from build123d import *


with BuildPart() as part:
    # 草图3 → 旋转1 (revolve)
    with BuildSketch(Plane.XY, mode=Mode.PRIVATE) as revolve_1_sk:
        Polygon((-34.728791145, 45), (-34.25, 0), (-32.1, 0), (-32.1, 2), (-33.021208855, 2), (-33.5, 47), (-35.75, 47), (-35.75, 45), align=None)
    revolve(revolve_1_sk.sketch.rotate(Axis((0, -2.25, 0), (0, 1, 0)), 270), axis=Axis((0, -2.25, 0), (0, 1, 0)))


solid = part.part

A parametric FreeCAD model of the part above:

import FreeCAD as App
import Part
import Sketcher
from FreeCAD import Vector


def add_polygon(sketch, points):
    """Adds a closed chain of lines whose ends are joined by coincident constraints."""
    first, n = sketch.GeometryCount, len(points)
    for a, b in zip(points, points[1:] + points[:1]):
        sketch.addGeometry(Part.LineSegment(App.Vector(*a, 0), App.Vector(*b, 0)), False)
    for i in range(n):
        sketch.addConstraint(Sketcher.Constraint("Coincident", first + i, 2, first + (i + 1) % n, 1))

doc = App.newDocument("Part")
params = doc.addObject("Spreadsheet::Sheet", "Params")
for row, (alias, value) in enumerate([
    ("sketch1_height", "2 mm"),
    ("sketch1_width", "2.15 mm"),
    ("sketch1_width2", "2.25 mm"),
    ("revolution_angle", "360 deg"),
], start=1):
    params.set(f"A{row}", alias)
    params.set(f"B{row}", "=" + value)
    params.setAlias(f"B{row}", alias)

body = doc.addObject("PartDesign::Body", "Body")

sketch1 = doc.addObject("Sketcher::SketchObject", "Sketch")
body.addObject(sketch1)
sketch1.AttachmentSupport = (doc.XY_Plane, [""])
sketch1.MapMode = "FlatFace"
add_polygon(sketch1, [(-34.7, 45), (-34.2, 0), (-32.1, 0), (-32.1, 2), (-33, 2), (-33.5, 47), (-35.8, 47), (-35.8, 45)])
sketch1.addConstraint(Sketcher.Constraint("Horizontal", 1))
sketch1.addConstraint(Sketcher.Constraint("Vertical", 2))
sketch1.addConstraint(Sketcher.Constraint("Horizontal", 3))
sketch1.addConstraint(Sketcher.Constraint("Horizontal", 5))
sketch1.addConstraint(Sketcher.Constraint("Vertical", 6))
sketch1.addConstraint(Sketcher.Constraint("Horizontal", 7))
sketch1.addConstraint(Sketcher.Constraint("PointOnObject", 0, 2, -1))
sketch1.addConstraint(Sketcher.Constraint("Parallel", 0, 4))
sketch1.addConstraint(Sketcher.Constraint("Equal", 2, 6))
sketch1.addConstraint(Sketcher.Constraint("DistanceY", 2, 1, 2, 2, 2.0))
sketch1.addConstraint(Sketcher.Constraint("DistanceY", -1, 1, 4, 2, 47.0))
sketch1.addConstraint(Sketcher.Constraint("DistanceX", 1, 1, 1, 2, 2.15))
sketch1.addConstraint(Sketcher.Constraint("DistanceX", 5, 2, 5, 1, 2.25))
sketch1.addConstraint(Sketcher.Constraint("DistanceX", 1, 2, -1, 1, 32.1))
sketch1.addConstraint(Sketcher.Constraint("DistanceX", 4, 2, -1, 1, 33.5))
sketch1.addConstraint(Sketcher.Constraint("DistanceX", 3, 2, 3, 1, 0.921209))
sketch1.setExpression("Constraints[17]", "Params.sketch1_height")
sketch1.setExpression("Constraints[19]", "Params.sketch1_width")
sketch1.setExpression("Constraints[20]", "Params.sketch1_width2")
revolution = doc.addObject("PartDesign::Revolution", "Revolution")
body.addObject(revolution)
revolution.Profile = sketch1
revolution.ReferenceAxis = (sketch1, ["V_Axis"])
revolution.setExpression("Angle", "Params.revolution_angle")

doc.recompute()
